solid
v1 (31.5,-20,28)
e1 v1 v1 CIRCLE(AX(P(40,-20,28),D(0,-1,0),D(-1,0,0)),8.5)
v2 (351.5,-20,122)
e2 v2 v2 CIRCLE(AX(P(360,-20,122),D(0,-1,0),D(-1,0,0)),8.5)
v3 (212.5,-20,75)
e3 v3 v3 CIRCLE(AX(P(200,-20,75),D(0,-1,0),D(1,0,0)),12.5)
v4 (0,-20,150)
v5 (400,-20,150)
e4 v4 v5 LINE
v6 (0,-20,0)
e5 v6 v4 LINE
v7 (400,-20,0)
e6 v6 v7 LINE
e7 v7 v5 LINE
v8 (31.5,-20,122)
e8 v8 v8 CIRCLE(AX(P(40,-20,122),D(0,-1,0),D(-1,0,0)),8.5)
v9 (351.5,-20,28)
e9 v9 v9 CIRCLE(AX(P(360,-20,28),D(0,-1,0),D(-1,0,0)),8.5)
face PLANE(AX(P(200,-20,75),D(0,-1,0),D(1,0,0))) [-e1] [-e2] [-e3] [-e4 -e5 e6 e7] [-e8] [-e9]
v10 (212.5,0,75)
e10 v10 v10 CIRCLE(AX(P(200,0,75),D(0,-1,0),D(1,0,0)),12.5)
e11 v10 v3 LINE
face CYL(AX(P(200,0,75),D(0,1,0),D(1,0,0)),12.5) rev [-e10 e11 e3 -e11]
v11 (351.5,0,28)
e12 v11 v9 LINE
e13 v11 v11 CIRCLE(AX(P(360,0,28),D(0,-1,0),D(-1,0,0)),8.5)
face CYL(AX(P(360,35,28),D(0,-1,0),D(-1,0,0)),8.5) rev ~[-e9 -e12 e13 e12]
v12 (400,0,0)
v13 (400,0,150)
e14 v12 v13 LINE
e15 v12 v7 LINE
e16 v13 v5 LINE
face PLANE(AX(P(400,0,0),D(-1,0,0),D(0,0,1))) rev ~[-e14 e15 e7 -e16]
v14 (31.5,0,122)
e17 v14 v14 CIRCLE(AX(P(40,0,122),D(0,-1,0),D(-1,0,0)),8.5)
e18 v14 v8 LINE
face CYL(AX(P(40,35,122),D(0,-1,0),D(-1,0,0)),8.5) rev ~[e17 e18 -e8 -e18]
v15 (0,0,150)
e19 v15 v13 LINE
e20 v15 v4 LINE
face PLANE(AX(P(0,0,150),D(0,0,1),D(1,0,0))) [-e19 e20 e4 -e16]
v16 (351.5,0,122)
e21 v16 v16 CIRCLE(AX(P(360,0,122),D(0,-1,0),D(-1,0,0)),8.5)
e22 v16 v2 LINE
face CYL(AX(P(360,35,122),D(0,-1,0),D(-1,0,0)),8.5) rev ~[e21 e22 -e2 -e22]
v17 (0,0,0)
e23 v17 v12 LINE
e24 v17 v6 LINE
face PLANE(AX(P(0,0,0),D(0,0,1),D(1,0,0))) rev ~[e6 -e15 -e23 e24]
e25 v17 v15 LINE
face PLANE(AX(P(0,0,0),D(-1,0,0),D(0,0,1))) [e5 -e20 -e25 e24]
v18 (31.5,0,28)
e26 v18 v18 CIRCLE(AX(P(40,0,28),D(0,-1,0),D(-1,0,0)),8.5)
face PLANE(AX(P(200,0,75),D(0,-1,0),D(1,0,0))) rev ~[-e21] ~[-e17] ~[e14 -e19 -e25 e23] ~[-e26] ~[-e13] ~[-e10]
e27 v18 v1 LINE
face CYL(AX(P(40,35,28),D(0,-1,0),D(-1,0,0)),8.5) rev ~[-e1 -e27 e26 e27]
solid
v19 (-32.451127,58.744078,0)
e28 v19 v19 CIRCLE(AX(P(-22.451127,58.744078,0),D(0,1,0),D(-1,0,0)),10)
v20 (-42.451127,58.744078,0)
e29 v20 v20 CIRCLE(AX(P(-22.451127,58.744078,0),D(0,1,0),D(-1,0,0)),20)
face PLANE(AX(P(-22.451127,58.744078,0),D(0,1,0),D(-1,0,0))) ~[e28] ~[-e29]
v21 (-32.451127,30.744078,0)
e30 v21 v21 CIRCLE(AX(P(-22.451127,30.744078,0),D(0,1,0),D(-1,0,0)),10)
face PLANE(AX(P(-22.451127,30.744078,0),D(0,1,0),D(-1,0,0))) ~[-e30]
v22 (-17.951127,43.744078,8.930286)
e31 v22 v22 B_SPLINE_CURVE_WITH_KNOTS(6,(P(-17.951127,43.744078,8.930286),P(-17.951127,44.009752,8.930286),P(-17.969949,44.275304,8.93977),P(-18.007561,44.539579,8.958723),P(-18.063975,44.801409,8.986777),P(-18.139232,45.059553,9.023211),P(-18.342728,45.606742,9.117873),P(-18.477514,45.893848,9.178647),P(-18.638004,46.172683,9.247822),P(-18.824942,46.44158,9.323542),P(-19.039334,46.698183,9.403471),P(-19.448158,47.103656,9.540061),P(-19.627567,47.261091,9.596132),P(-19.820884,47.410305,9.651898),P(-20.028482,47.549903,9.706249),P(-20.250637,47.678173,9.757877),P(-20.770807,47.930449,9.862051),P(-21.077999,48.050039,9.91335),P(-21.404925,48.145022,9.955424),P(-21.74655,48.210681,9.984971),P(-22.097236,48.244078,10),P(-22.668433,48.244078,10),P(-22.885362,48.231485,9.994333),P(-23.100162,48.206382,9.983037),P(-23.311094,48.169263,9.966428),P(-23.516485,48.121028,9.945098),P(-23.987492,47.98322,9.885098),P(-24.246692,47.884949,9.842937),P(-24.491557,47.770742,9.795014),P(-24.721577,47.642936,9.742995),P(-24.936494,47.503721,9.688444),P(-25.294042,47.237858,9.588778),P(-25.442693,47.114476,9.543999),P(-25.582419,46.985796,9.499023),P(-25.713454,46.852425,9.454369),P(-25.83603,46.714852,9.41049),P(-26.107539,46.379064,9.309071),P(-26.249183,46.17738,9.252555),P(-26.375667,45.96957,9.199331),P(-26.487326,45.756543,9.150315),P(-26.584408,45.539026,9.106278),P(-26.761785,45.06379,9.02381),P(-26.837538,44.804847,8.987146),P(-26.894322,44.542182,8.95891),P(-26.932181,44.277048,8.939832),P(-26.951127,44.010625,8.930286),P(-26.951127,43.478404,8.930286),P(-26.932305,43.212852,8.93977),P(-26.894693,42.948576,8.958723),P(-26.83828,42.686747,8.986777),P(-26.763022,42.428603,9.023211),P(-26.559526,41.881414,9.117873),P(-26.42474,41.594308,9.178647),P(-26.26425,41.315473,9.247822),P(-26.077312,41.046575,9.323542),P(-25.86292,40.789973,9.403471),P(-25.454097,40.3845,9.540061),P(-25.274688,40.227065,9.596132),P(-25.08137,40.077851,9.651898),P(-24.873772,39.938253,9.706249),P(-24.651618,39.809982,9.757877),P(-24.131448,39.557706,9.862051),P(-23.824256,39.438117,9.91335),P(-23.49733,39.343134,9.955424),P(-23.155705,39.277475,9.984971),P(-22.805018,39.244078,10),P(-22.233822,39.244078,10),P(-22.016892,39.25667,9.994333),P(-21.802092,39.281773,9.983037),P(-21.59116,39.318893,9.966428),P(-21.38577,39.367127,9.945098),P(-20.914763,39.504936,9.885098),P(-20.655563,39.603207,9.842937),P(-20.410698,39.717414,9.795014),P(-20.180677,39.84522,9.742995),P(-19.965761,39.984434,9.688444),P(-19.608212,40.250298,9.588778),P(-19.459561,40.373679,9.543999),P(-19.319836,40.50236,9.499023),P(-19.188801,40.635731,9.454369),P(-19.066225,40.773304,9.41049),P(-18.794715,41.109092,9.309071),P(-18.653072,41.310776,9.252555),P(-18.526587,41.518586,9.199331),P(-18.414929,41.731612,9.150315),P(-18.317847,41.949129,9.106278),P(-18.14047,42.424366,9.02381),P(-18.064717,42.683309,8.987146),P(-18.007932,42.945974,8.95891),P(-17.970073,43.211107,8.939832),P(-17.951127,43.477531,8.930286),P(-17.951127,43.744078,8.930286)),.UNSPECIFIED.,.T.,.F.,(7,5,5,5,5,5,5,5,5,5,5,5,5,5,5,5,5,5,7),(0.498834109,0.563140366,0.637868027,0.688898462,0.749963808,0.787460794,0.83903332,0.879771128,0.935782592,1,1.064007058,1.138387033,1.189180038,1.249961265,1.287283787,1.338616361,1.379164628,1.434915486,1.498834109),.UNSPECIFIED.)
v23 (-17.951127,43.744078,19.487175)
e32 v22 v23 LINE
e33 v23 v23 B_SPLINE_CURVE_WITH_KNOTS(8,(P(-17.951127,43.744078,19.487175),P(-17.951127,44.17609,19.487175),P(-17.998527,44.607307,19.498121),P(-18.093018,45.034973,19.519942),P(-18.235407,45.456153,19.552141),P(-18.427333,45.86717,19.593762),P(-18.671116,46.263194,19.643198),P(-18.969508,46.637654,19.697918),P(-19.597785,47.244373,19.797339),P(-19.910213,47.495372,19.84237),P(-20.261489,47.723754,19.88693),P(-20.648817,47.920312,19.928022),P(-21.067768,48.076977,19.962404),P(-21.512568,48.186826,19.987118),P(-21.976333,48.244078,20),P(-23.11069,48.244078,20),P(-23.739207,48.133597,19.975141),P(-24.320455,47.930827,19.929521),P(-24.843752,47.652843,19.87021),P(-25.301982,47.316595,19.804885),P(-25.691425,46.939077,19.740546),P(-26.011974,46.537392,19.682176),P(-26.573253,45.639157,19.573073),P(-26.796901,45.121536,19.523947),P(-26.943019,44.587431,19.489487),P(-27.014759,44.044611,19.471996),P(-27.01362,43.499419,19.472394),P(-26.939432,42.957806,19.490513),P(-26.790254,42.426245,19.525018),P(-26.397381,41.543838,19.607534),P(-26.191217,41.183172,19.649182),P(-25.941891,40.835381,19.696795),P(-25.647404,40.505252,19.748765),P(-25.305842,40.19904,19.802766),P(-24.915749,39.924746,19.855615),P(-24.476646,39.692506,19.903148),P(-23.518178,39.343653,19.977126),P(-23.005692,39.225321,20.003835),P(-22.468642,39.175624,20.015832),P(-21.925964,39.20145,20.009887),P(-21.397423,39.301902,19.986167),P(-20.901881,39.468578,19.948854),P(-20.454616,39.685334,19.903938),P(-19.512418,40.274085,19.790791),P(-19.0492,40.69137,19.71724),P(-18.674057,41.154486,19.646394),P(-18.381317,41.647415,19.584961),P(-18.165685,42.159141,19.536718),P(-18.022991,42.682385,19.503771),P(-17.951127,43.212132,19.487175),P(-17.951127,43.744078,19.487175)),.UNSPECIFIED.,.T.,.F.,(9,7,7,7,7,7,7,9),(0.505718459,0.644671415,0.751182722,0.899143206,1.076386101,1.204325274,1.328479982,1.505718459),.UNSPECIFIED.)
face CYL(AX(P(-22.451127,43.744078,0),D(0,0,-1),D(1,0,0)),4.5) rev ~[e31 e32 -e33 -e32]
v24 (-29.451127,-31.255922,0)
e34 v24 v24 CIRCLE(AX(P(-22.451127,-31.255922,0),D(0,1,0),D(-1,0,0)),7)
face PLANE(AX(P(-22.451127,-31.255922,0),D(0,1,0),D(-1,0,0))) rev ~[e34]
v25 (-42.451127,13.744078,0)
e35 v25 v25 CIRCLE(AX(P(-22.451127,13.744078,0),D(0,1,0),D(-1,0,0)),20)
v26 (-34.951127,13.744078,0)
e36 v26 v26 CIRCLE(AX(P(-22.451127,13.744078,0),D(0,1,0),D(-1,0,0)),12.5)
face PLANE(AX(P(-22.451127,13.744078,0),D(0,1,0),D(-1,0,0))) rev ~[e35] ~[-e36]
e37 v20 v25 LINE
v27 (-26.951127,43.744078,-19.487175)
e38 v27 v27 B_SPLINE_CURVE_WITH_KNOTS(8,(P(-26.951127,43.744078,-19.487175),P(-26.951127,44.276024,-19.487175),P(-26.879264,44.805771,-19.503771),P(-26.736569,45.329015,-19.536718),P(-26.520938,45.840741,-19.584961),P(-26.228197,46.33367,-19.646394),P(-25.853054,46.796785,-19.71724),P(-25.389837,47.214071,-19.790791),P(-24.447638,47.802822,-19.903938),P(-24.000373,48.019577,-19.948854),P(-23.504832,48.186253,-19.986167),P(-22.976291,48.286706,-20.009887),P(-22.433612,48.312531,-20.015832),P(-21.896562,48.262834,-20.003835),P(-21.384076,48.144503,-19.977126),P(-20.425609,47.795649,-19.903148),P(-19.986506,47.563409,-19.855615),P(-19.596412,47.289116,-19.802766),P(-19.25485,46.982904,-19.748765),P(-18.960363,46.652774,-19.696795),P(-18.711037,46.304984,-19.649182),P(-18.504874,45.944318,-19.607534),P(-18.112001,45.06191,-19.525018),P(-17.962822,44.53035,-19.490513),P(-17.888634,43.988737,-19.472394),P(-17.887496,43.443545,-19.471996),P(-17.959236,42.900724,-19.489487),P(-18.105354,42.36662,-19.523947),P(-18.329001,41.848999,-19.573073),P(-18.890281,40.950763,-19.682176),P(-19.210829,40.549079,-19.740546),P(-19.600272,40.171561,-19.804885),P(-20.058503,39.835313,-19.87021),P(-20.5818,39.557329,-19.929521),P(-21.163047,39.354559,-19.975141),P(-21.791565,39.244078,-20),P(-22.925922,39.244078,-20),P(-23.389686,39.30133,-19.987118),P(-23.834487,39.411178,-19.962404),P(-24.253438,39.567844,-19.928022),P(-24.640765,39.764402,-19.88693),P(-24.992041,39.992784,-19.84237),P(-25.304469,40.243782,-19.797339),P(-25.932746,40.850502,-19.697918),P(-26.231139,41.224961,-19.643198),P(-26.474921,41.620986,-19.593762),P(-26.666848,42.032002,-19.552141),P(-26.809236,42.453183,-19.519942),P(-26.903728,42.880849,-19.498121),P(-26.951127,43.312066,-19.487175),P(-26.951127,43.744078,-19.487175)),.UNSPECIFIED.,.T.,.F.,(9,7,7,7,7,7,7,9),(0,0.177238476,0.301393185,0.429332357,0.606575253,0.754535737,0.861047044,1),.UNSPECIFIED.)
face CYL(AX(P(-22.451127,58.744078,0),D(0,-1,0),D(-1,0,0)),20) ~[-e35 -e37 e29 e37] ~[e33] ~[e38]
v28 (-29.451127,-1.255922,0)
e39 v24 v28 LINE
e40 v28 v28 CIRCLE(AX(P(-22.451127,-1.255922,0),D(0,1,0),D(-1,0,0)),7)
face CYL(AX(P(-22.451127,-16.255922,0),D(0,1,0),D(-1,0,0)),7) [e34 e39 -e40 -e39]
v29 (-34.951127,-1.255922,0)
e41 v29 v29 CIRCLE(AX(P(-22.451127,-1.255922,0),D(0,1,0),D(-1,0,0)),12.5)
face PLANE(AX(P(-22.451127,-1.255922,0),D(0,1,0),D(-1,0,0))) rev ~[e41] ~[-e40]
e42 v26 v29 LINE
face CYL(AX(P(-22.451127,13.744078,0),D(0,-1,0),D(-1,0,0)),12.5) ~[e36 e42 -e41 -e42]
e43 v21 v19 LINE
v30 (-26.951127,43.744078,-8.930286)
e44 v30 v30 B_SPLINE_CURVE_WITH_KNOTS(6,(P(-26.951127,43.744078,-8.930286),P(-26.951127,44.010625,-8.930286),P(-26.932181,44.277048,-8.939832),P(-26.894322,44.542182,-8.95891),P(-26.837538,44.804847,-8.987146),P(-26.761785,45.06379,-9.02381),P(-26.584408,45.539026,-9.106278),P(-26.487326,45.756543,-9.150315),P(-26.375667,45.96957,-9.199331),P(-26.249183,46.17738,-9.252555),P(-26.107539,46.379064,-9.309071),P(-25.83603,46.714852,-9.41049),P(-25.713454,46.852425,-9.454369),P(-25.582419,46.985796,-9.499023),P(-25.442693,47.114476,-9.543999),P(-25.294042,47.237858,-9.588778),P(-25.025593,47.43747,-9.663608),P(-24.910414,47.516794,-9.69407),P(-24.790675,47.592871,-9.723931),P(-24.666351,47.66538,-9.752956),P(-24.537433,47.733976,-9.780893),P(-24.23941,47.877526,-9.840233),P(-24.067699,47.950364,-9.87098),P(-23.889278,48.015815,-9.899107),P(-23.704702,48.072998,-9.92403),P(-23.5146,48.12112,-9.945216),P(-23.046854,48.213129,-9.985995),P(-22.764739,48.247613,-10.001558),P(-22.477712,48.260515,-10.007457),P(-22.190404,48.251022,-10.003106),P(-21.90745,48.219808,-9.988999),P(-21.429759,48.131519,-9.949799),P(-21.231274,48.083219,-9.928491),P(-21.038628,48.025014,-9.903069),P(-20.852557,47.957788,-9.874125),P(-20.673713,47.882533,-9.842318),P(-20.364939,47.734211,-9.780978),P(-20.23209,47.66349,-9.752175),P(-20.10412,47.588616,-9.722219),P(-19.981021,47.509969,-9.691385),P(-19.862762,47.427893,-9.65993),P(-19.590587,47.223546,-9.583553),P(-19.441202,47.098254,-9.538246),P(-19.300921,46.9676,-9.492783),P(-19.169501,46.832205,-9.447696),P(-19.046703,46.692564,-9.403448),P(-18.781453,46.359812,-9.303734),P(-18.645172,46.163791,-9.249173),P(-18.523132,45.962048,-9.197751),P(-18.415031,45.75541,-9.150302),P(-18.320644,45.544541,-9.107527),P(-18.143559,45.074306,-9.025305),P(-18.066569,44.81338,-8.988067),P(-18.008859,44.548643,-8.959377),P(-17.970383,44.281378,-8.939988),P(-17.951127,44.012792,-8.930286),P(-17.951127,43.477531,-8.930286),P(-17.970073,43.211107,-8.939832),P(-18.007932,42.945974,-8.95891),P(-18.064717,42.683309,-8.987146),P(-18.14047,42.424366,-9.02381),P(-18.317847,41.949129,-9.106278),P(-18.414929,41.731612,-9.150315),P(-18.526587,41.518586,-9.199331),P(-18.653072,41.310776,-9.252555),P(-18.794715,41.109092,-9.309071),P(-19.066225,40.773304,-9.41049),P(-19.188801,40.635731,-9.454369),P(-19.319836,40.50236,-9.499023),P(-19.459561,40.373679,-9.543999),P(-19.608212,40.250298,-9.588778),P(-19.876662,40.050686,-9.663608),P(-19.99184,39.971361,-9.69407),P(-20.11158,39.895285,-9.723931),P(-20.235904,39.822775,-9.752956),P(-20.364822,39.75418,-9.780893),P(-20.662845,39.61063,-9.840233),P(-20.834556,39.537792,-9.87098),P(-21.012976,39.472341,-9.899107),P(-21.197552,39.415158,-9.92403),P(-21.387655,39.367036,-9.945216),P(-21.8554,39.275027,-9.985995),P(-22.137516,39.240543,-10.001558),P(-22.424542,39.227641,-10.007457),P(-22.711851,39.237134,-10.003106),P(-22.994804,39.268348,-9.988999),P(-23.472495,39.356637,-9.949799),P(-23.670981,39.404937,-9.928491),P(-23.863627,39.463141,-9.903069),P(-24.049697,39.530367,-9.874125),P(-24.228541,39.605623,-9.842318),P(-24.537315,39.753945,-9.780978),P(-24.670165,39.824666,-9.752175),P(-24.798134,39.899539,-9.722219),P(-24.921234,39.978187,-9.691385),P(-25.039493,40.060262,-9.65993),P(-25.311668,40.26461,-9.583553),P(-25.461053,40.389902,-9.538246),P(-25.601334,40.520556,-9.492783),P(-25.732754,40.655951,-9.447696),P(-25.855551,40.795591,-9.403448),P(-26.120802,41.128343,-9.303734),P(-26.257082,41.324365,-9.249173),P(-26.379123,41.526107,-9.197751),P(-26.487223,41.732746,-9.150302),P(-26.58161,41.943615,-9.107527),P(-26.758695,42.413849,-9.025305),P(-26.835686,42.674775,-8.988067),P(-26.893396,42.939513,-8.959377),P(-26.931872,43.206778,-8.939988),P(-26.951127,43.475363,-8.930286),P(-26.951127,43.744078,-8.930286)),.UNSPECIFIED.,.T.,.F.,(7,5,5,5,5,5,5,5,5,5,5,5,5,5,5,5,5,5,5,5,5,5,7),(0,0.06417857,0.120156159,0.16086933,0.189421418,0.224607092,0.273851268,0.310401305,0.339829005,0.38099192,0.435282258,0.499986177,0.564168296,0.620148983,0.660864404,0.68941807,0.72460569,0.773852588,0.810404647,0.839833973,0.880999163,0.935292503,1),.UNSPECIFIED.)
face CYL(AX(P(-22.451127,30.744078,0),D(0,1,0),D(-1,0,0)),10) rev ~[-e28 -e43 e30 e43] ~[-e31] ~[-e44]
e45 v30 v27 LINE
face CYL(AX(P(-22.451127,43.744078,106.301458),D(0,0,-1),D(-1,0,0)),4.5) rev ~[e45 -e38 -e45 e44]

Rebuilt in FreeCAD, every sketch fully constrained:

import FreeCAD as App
import Part
import Sketcher
from FreeCAD import Vector
Q = App.Units.Quantity


def add_polygon(sketch, points):
    """Adds a closed chain of lines whose ends are joined by coincident constraints."""
    first, n = sketch.GeometryCount, len(points)
    for a, b in zip(points, points[1:] + points[:1]):
        sketch.addGeometry(Part.LineSegment(App.Vector(*a, 0), App.Vector(*b, 0)), False)
    for i in range(n):
        sketch.addConstraint(Sketcher.Constraint("Coincident", first + i, 2, first + (i + 1) % n, 1))

doc = App.newDocument("Part")
body = doc.addObject("PartDesign::Body", "Body")

sketch1 = body.newObject("Sketcher::SketchObject", "Sketch")
sketch1.AttachmentSupport = (doc.getObject("XZ_Plane"), [""])
sketch1.MapMode = "FlatFace"
add_polygon(sketch1, [(0, 150), (0, 0), (400, 0), (400, 150)])
sketch1.addGeometry(Part.Circle(Vector(200, 75, 0), Vector(0, 0, 1), 12), False)
sketch1.addConstraint(Sketcher.Constraint("Vertical", 0))
sketch1.addConstraint(Sketcher.Constraint("Horizontal", 1))
sketch1.addConstraint(Sketcher.Constraint("Vertical", 2))
sketch1.addConstraint(Sketcher.Constraint("Horizontal", 3))
sketch1.addConstraint(Sketcher.Constraint("Coincident", 0, 2, -1, 1))
sketch1.addConstraint(Sketcher.Constraint("Diameter", 4, Q("25 mm")))
sketch1.addConstraint(Sketcher.Constraint("DistanceX", 1, 1, 1, 2, Q("400 mm")))
sketch1.addConstraint(Sketcher.Constraint("DistanceY", 0, 2, 0, 1, Q("150 mm")))
sketch1.addConstraint(Sketcher.Constraint("DistanceX", -1, 1, 4, 3, Q("200 mm")))
sketch1.addConstraint(Sketcher.Constraint("DistanceY", -1, 1, 4, 3, Q("75 mm")))
pad1 = body.newObject("PartDesign::Pad", "Pad")
pad1.Profile = sketch1
pad1.Length = 20

sketch2 = body.newObject("Sketcher::SketchObject", "Sketch001")
sketch2.AttachmentSupport = (doc.getObject("XZ_Plane"), [""])
sketch2.MapMode = "FlatFace"
sketch2.addGeometry(Part.Circle(Vector(360, 122, 0), Vector(0, 0, 1), 8), False)
sketch2.addGeometry(Part.Circle(Vector(360, 28, 0), Vector(0, 0, 1), 8), False)
sketch2.addGeometry(Part.Circle(Vector(40, 122, 0), Vector(0, 0, 1), 8), False)
sketch2.addGeometry(Part.Circle(Vector(40, 28, 0), Vector(0, 0, 1), 8), False)
sketch2.addConstraint(Sketcher.Constraint("Equal", 0, 1))
sketch2.addConstraint(Sketcher.Constraint("Equal", 1, 2))
sketch2.addConstraint(Sketcher.Constraint("Equal", 2, 3))
sketch2.addConstraint(Sketcher.Constraint("Horizontal", 0, 3, 2, 3))
sketch2.addConstraint(Sketcher.Constraint("Horizontal", 1, 3, 3, 3))
sketch2.addConstraint(Sketcher.Constraint("Vertical", 0, 3, 1, 3))
sketch2.addConstraint(Sketcher.Constraint("Vertical", 2, 3, 3, 3))
sketch2.addConstraint(Sketcher.Constraint("Diameter", 0, Q("17 mm")))
sketch2.addConstraint(Sketcher.Constraint("DistanceX", -1, 1, 0, 3, Q("360 mm")))
sketch2.addConstraint(Sketcher.Constraint("DistanceY", -1, 1, 0, 3, Q("122 mm")))
sketch2.addConstraint(Sketcher.Constraint("DistanceY", -1, 1, 1, 3, Q("28 mm")))
sketch2.addConstraint(Sketcher.Constraint("DistanceX", -1, 1, 2, 3, Q("40 mm")))
doc.recompute()
hole = body.newObject("PartDesign::Hole", "Hole")
hole.Profile = sketch2
hole.ThreadType = "None"
hole.Diameter = 17
hole.DepthType = "Dimension"
hole.Depth = 35
hole.DrillPoint = "Angled"
hole.DrillPointAngle = 118
hole.Reversed = True
body2 = doc.addObject("PartDesign::Body", "Body001")

sketch3 = body2.newObject("Sketcher::SketchObject", "Sketch002")
sketch3.AttachmentSupport = (doc.getObject("XY_Plane001"), [""])
sketch3.MapMode = "FlatFace"
add_polygon(sketch3, [(-22, 31), (-32, 31), (-32, 59), (-42, 59), (-42, 14), (-35, 14), (-35, -1), (-29, -1), (-29, -31), (-22, -31)])
sketch3.addGeometry(Part.LineSegment(Vector(-22, -31, 0), Vector(-22, 59, 0)), True)
sketch3.addConstraint(Sketcher.Constraint("Horizontal", 0))
sketch3.addConstraint(Sketcher.Constraint("Vertical", 1))
sketch3.addConstraint(Sketcher.Constraint("Horizontal", 2))
sketch3.addConstraint(Sketcher.Constraint("Vertical", 3))
sketch3.addConstraint(Sketcher.Constraint("Horizontal", 4))
sketch3.addConstraint(Sketcher.Constraint("Vertical", 5))
sketch3.addConstraint(Sketcher.Constraint("Horizontal", 6))
sketch3.addConstraint(Sketcher.Constraint("Vertical", 7))
sketch3.addConstraint(Sketcher.Constraint("Horizontal", 8))
sketch3.addConstraint(Sketcher.Constraint("Vertical", 9))
sketch3.addConstraint(Sketcher.Constraint("Vertical", 10))
sketch3.addConstraint(Sketcher.Constraint("Coincident", 10, 1, 8, 2))
sketch3.addConstraint(Sketcher.Constraint("Horizontal", 2, 2, 10, 2))
sketch3.addConstraint(Sketcher.Constraint("Equal", 0, 2))
sketch3.addConstraint(Sketcher.Constraint("DistanceX", 0, 2, 0, 1, Q("10 mm")))
sketch3.addConstraint(Sketcher.Constraint("DistanceX", 8, 1, 8, 2, Q("7 mm")))
sketch3.addConstraint(Sketcher.Constraint("DistanceY", 1, 1, 1, 2, Q("28 mm")))
sketch3.addConstraint(Sketcher.Constraint("DistanceY", 3, 2, 3, 1, Q("45 mm")))
sketch3.addConstraint(Sketcher.Constraint("DistanceY", 5, 2, 5, 1, Q("15 mm")))
sketch3.addConstraint(Sketcher.Constraint("DistanceY", 7, 2, 7, 1, Q("30 mm")))
sketch3.addConstraint(Sketcher.Constraint("DistanceX", 4, 1, 4, 2, Q("7.5 mm")))
sketch3.addConstraint(Sketcher.Constraint("DistanceX", 0, 2, -1, 1, Q("32.451127 mm")))
sketch3.addConstraint(Sketcher.Constraint("DistanceY", -1, 1, 0, 2, Q("30.744078 mm")))
revolution = body2.newObject("PartDesign::Revolution", "Revolution")
revolution.Profile = sketch3
revolution.ReferenceAxis = (sketch3, ["Axis0"])
revolution.Angle = 360

sketch4 = body2.newObject("Sketcher::SketchObject", "Sketch003")
sketch4.AttachmentSupport = (doc.getObject("XY_Plane001"), [""])
sketch4.MapMode = "FlatFace"
sketch4.addGeometry(Part.Circle(Vector(-22.5, 43.7, 0), Vector(0, 0, 1), 4.5), False)
sketch4.addConstraint(Sketcher.Constraint("Diameter", 0, Q("9 mm")))
sketch4.addConstraint(Sketcher.Constraint("DistanceX", 0, 3, -1, 1, Q("22.451127 mm")))
sketch4.addConstraint(Sketcher.Constraint("DistanceY", -1, 1, 0, 3, Q("43.744078 mm")))
pocket1 = body2.newObject("PartDesign::Pocket", "Pocket")
pocket1.Profile = sketch4
pocket1.Type = "ThroughAll"
pocket1.Reversed = True

sketch5 = body2.newObject("Sketcher::SketchObject", "Sketch004")
sketch5.AttachmentSupport = (doc.getObject("XY_Plane001"), [""])
sketch5.MapMode = "FlatFace"
sketch5.addGeometry(Part.Circle(Vector(-22.5, 43.7, 0), Vector(0, 0, 1), 4.5), False)
sketch5.addConstraint(Sketcher.Constraint("Diameter", 0, Q("9 mm")))
sketch5.addConstraint(Sketcher.Constraint("DistanceX", 0, 3, -1, 1, Q("22.451127 mm")))
sketch5.addConstraint(Sketcher.Constraint("DistanceY", -1, 1, 0, 3, Q("43.744078 mm")))
doc.recompute()
hole2 = body2.newObject("PartDesign::Hole", "Hole001")
hole2.Profile = sketch5
hole2.ThreadType = "None"
hole2.Diameter = 9
hole2.DepthType = "ThroughAll"

doc.recompute()
